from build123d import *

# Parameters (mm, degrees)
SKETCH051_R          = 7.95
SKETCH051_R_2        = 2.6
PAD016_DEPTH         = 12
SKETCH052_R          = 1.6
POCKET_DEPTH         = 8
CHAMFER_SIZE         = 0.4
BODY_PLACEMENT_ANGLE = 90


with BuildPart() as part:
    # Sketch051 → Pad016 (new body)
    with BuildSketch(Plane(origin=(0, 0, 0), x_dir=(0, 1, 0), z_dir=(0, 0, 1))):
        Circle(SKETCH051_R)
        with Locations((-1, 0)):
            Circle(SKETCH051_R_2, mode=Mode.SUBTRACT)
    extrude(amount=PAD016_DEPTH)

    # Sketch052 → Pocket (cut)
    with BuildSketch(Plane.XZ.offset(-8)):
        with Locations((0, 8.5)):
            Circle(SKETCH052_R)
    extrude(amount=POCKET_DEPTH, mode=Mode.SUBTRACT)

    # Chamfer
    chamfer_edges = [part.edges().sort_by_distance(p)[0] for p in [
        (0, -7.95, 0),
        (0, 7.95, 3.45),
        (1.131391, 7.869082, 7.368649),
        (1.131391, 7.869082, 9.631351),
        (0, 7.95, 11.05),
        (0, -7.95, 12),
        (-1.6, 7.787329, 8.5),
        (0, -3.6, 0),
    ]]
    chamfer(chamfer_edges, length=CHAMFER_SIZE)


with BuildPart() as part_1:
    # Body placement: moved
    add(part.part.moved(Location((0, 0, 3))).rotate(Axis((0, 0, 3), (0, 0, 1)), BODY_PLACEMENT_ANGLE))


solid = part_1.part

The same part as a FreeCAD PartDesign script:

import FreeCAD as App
import Part
import Sketcher
from FreeCAD import Vector


def edges_at(feature, points):
    """Names of the edges that pass closest to the given points."""
    edges = feature.Shape.Edges
    near = lambda p: min(range(len(edges)), key=lambda i: edges[i].distToShape(Part.Vertex(*p))[0])
    return sorted({f"Edge{near(p) + 1}" for p in points})

doc = App.newDocument("Part")
body = doc.addObject("PartDesign::Body", "Body")

# Sketch on XY plane
sketch1 = body.newObject("Sketcher::SketchObject", "Sketch")
sketch1.AttachmentSupport = (doc.getObject("XY_Plane"), [""])
sketch1.MapMode = "FlatFace"
sketch1.addGeometry([
    Part.Circle(Vector(0, 0, 0), Vector(0, 0, 1), 8),
    Part.Circle(Vector(0, -1, 0), Vector(0, 0, 1), 2.6),
], False)
sketch1.addConstraint([
    Sketcher.Constraint("Coincident", 0, 3, -1, 1),
    Sketcher.Constraint("PointOnObject", 1, 3, -2),
    Sketcher.Constraint("Diameter", 0, 15.9),
    Sketcher.Constraint("Diameter", 1, 5.2),
    Sketcher.Constraint("DistanceY", 1, 3, -1, 1, 1.0),
])
pad1 = body.newObject("PartDesign::Pad", "Pad")
pad1.Profile = sketch1
pad1.Length = 12

# Sketch on XZ plane
sketch2 = body.newObject("Sketcher::SketchObject", "Sketch001")
sketch2.AttachmentSupport = (doc.getObject("XZ_Plane"), [""])
sketch2.MapMode = "FlatFace"
sketch2.AttachmentOffset = App.Placement(Vector(0, 0, -8), App.Rotation())
sketch2.addGeometry(Part.Circle(Vector(0, 8.5, 0), Vector(0, 0, 1), 1.6), False)
sketch2.addConstraint([
    Sketcher.Constraint("PointOnObject", 0, 3, -2),
    Sketcher.Constraint("Diameter", 0, 3.2),
    Sketcher.Constraint("DistanceY", -1, 1, 0, 3, 8.5),
])
pocket1 = body.newObject("PartDesign::Pocket", "Pocket")
pocket1.Profile = sketch2
pocket1.Length = 8
pocket1.Reversed = True
doc.recompute()

chamfer = body.newObject("PartDesign::Chamfer", "Chamfer")
chamfer.Base = (pocket1, edges_at(pocket1, [
    (0, -7.95, 0),
    (0, 7.95, 3.45),
    (1.131, 7.869, 7.369),
    (1.131, 7.869, 9.631),
    (0, 7.95, 11.05),
    (0, -7.95, 12),
    (-1.6, 7.787, 8.5),
    (0, -3.6, 0),
]))
chamfer.Size = 0.4
body2 = doc.addObject("PartDesign::Body", "Body001")
doc.recompute()

body.Placement = App.Placement(Vector(0, 0, 3), App.Rotation(Vector(0, 0, 1), 90))
boolean = body2.newObject("PartDesign::Boolean", "Boolean")
boolean.Type = "Fuse"
boolean.addObjects([body])

doc.recompute()
